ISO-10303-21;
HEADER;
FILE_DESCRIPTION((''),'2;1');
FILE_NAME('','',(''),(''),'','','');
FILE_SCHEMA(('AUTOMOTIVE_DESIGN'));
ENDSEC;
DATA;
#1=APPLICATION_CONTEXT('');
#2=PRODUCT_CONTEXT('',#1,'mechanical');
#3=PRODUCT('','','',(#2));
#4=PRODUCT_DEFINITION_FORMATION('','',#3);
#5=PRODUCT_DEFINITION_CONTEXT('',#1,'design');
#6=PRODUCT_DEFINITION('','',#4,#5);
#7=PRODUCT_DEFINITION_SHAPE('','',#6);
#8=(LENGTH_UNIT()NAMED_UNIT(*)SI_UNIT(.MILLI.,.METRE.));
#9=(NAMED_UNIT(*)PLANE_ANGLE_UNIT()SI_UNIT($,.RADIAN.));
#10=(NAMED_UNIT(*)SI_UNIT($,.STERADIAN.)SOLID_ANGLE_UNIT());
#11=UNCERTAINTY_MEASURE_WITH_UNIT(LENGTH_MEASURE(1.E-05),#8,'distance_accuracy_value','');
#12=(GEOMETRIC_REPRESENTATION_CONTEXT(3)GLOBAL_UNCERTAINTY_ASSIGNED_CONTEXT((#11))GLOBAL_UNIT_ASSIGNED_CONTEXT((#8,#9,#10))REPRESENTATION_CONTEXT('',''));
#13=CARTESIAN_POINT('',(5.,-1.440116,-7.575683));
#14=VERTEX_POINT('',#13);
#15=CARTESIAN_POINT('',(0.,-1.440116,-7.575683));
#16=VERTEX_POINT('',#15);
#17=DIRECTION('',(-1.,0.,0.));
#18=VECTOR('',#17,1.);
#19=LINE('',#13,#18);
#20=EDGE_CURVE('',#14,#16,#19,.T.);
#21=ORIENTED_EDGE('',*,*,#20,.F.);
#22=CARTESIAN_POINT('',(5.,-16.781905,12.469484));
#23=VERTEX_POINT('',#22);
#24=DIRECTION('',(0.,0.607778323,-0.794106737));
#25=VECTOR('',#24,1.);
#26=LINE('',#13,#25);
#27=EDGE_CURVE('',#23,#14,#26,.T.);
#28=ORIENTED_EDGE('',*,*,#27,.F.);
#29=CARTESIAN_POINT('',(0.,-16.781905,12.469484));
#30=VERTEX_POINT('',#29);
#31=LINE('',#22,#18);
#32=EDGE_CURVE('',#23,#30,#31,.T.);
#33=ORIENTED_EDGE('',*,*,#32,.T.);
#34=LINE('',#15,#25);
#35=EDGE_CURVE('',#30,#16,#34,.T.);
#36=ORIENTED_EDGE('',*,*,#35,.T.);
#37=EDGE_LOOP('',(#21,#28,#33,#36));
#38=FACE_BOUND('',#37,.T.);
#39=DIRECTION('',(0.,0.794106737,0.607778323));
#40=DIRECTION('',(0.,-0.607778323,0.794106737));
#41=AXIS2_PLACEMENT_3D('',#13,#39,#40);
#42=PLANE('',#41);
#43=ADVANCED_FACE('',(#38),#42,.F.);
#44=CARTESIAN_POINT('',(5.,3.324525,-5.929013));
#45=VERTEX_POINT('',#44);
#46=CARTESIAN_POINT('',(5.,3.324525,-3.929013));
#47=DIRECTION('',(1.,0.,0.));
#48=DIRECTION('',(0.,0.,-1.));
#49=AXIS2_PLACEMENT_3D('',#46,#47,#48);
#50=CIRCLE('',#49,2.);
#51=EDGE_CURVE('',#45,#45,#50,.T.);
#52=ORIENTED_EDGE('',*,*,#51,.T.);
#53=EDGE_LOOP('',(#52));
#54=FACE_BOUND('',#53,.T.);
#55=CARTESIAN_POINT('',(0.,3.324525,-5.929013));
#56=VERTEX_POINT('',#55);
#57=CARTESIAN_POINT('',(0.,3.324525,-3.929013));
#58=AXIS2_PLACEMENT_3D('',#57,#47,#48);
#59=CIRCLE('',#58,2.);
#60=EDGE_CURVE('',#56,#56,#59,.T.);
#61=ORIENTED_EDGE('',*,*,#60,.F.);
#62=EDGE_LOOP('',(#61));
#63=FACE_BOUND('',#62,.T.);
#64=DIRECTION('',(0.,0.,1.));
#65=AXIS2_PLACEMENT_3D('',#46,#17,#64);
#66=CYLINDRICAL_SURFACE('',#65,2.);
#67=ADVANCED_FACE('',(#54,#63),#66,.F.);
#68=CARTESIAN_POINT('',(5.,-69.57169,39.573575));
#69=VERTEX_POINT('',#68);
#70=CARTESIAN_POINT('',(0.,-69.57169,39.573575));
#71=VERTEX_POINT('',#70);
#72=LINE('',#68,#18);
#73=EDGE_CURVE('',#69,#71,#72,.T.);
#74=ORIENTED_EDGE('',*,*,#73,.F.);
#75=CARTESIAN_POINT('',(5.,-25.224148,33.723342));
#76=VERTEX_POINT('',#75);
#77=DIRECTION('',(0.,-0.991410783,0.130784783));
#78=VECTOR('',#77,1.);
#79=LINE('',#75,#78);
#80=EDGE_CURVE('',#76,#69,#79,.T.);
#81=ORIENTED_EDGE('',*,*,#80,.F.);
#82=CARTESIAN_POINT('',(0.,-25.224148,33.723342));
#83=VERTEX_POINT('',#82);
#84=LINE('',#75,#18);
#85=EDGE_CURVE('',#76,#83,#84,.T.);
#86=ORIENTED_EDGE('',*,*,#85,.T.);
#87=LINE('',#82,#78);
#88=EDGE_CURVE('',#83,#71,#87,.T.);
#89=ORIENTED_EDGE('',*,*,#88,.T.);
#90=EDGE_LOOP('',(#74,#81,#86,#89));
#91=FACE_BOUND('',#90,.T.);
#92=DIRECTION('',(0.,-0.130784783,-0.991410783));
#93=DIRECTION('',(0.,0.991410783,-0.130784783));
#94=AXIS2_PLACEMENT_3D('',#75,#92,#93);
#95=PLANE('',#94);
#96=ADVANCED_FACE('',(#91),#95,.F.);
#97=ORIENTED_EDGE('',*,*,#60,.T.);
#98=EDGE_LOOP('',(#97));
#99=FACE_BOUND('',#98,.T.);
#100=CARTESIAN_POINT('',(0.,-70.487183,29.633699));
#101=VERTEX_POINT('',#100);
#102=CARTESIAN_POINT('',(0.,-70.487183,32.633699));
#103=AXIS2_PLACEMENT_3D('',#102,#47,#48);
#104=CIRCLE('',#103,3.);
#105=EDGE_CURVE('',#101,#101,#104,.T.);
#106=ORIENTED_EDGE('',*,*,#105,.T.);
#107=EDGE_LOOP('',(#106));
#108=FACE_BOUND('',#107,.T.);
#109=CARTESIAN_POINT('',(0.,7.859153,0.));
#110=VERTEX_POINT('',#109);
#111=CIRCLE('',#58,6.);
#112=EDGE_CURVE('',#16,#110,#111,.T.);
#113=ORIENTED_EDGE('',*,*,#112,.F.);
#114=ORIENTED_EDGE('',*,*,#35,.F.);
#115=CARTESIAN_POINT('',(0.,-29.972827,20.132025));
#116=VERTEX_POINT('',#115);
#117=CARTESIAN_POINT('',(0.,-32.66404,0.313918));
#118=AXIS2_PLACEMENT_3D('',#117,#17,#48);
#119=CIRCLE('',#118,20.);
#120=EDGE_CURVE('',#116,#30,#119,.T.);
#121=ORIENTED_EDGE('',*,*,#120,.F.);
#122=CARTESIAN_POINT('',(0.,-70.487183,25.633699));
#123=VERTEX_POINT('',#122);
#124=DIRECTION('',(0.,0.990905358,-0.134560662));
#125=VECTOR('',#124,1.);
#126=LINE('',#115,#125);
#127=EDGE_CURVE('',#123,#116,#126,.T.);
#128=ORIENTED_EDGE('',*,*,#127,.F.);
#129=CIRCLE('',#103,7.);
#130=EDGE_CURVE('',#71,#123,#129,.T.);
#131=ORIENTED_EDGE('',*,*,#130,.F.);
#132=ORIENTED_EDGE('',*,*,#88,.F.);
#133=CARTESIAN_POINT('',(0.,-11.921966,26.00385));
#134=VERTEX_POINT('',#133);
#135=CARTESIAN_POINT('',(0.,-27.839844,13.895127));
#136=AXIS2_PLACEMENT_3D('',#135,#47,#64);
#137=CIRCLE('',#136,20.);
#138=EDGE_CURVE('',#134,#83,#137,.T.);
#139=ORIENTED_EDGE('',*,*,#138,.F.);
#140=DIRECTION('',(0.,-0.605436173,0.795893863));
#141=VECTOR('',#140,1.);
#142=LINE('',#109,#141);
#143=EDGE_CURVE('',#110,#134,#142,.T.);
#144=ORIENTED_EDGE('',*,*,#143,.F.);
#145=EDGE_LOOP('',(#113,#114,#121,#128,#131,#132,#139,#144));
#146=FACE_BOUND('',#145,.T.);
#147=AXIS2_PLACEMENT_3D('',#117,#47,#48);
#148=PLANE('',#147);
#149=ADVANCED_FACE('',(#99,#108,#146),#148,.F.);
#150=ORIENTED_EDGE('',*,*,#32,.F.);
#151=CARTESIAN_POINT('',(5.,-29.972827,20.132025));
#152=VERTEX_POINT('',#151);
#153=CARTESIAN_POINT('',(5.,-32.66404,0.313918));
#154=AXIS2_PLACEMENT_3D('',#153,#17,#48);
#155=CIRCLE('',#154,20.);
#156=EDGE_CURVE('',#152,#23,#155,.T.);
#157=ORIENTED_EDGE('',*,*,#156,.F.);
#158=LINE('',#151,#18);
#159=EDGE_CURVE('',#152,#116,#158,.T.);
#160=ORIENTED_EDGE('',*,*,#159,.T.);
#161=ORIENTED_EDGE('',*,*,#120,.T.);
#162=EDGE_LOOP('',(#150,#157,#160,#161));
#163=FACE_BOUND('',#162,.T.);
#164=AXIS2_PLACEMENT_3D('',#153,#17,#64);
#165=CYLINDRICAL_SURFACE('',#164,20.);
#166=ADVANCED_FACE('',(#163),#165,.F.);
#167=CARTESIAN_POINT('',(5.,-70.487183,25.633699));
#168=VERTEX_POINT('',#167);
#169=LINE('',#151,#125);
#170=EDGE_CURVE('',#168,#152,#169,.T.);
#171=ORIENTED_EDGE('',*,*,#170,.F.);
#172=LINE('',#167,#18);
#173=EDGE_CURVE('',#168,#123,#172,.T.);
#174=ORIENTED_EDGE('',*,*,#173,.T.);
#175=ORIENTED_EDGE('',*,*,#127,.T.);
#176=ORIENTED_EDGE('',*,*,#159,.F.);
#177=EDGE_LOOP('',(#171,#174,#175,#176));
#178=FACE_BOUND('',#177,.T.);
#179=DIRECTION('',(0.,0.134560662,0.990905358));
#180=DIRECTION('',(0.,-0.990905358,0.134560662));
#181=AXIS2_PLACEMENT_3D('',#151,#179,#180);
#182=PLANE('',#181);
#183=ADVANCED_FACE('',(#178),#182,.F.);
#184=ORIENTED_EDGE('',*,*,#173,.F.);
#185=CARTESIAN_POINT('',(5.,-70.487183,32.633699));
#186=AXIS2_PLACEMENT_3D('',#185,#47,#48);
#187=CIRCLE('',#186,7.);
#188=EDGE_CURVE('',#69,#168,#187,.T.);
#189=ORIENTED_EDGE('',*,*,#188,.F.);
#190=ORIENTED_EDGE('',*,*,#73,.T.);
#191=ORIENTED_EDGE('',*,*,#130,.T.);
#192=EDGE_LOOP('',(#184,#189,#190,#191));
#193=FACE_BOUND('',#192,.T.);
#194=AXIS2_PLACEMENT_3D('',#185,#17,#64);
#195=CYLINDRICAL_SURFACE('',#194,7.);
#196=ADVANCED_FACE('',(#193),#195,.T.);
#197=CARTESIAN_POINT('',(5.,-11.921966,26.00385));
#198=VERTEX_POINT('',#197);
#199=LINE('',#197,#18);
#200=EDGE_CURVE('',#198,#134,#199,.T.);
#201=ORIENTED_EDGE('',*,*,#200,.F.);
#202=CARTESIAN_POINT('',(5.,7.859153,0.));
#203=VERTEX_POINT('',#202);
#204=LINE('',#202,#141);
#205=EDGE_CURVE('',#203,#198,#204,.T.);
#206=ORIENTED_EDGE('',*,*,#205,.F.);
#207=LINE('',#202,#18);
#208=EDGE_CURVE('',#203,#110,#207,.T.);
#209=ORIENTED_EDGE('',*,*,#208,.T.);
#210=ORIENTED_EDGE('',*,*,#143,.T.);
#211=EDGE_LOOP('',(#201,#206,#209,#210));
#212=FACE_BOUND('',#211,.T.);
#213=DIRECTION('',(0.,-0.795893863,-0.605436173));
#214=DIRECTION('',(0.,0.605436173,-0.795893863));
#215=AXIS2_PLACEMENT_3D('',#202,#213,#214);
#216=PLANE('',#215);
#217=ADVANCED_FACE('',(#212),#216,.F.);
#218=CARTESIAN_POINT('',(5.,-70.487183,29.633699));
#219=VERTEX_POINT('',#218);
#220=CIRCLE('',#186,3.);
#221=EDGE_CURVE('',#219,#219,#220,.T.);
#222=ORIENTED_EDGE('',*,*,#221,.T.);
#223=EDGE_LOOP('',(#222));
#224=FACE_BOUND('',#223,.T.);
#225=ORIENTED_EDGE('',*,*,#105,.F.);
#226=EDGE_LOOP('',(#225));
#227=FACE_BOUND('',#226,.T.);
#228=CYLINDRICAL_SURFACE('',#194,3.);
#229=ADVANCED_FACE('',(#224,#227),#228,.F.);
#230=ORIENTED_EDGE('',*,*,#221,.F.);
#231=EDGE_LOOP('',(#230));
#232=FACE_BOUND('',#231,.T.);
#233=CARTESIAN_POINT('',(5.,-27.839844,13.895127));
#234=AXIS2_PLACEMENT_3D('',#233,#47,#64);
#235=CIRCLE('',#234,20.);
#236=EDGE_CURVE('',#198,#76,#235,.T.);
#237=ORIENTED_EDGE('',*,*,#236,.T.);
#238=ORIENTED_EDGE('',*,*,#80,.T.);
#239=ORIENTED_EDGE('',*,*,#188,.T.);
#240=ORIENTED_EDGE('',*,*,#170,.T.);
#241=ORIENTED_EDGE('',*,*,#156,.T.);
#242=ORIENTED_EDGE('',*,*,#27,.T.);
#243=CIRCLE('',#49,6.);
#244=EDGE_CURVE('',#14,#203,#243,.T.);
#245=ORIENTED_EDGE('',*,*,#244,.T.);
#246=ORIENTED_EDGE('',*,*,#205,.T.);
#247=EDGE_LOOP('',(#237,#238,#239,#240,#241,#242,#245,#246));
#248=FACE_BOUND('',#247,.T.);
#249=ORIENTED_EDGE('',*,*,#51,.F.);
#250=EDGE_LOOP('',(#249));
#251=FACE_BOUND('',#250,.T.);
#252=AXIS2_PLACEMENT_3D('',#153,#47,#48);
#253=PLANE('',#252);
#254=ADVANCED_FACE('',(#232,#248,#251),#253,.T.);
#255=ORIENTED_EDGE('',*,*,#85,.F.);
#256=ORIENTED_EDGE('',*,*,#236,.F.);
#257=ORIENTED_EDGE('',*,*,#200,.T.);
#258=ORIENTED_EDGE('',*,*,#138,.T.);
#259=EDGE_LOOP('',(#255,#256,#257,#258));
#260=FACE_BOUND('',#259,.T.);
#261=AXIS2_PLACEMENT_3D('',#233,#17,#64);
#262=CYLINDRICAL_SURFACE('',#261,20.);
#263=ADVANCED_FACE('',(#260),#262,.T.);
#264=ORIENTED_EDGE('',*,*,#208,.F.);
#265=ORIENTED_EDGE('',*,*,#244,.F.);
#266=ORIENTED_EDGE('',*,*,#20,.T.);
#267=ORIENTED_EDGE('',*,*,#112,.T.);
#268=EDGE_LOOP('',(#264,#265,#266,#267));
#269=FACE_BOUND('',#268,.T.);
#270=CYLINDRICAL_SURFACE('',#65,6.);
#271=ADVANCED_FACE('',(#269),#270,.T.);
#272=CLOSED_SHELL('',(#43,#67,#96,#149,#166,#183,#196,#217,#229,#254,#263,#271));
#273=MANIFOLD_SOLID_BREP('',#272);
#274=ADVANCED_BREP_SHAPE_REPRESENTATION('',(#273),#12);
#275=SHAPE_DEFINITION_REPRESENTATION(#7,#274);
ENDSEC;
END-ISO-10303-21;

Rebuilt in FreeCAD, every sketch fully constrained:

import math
import FreeCAD as App
import Part
import Sketcher

V = App.Vector
Q = App.Units.Quantity

doc = App.newDocument("Part")
body = doc.addObject("PartDesign::Body", "Body")

sketch1 = body.newObject("Sketcher::SketchObject", "Sketch")
sketch1.AttachmentSupport = (doc.getObject("YZ_Plane"), [""])
sketch1.MapMode = "FlatFace"
sketch1.addGeometry(Part.LineSegment(V(-16.781905, 12.469484, 0), V(-1.440116, -7.575683, 0)), False)
sketch1.addGeometry(Part.ArcOfCircle(Part.Circle(V(3.324525, -3.929013, 0), V(0, 0, 1), 6), math.radians(-142.570966), math.radians(40.90718)), False)
sketch1.addGeometry(Part.LineSegment(V(7.859153, 0, 0), V(-11.921966, 26.00385, 0)), False)
sketch1.addGeometry(Part.ArcOfCircle(Part.Circle(V(-27.839844, 13.895127, 0), V(0, 0, 1), 20), math.radians(37.260235), math.radians(82.485056)), False)
sketch1.addGeometry(Part.LineSegment(V(-25.224148, 33.723342, 0), V(-69.57169, 39.573575, 0)), False)
sketch1.addGeometry(Part.ArcOfCircle(Part.Circle(V(-70.487183, 32.633699, 0), V(0, 0, 1), 7), math.radians(82.485056), math.radians(270)), False)
sketch1.addGeometry(Part.LineSegment(V(-70.487183, 25.633699, 0), V(-29.972827, 20.132025, 0)), False)
sketch1.addGeometry(Part.ArcOfCircle(Part.Circle(V(-32.66404, 0.313918, 0), V(0, 0, 1), 20), math.radians(37.429034), math.radians(82.266784)), False)
sketch1.addGeometry(Part.Circle(V(-70.487183, 32.633699, 0), V(0, 0, 1), 3), False)
sketch1.addGeometry(Part.Circle(V(3.324525, -3.929013, 0), V(0, 0, 1), 2), False)
sketch1.addConstraint(Sketcher.Constraint("Tangent", 0, 2, 1, 1))
sketch1.addConstraint(Sketcher.Constraint("Coincident", 1, 2, 2, 1))
sketch1.addConstraint(Sketcher.Constraint("Tangent", 2, 2, 3, 1))
sketch1.addConstraint(Sketcher.Constraint("Tangent", 3, 2, 4, 1))
sketch1.addConstraint(Sketcher.Constraint("Tangent", 4, 2, 5, 1))
sketch1.addConstraint(Sketcher.Constraint("Coincident", 5, 2, 6, 1))
sketch1.addConstraint(Sketcher.Constraint("Tangent", 6, 2, 7, 2))
sketch1.addConstraint(Sketcher.Constraint("Tangent", 7, 1, 0, 1))
sketch1.addConstraint(Sketcher.Constraint("Coincident", 8, 3, 5, 3))
sketch1.addConstraint(Sketcher.Constraint("Coincident", 9, 3, 1, 3))
sketch1.addConstraint(Sketcher.Constraint("Equal", 3, 7))
sketch1.addConstraint(Sketcher.Constraint("PointOnObject", 1, 2, -1))
sketch1.addConstraint(Sketcher.Constraint("Vertical", 8, 3, 5, 2))
sketch1.addConstraint(Sketcher.Constraint("Diameter", 8, Q("6 mm")))
sketch1.addConstraint(Sketcher.Constraint("Diameter", 9, Q("4 mm")))
sketch1.addConstraint(Sketcher.Constraint("Radius", 1, Q("6 mm")))
sketch1.addConstraint(Sketcher.Constraint("Radius", 3, Q("20 mm")))
sketch1.addConstraint(Sketcher.Constraint("Radius", 5, Q("7 mm")))
sketch1.addConstraint(Sketcher.Constraint("Distance", 6, Q("40.886202 mm")))
sketch1.addConstraint(Sketcher.Constraint("DistanceY", -1, 1, 5, 3, Q("32.633699 mm")))
sketch1.addConstraint(Sketcher.Constraint("DistanceY", 0, 2, 7, 3, Q("7.889601 mm")))
sketch1.addConstraint(Sketcher.Constraint("DistanceY", 3, 3, 6, 2, Q("6.236898 mm")))
sketch1.addConstraint(Sketcher.Constraint("Distance", 0, Q("25.242409 mm")))
sketch1.addConstraint(Sketcher.Constraint("Distance", 2, Q("32.67251 mm")))
sketch1.addConstraint(Sketcher.Constraint("DistanceX", 7, 3, -1, 1, Q("32.66404 mm")))
sketch1.addConstraint(Sketcher.Constraint("DistanceY", -1, 1, 2, 2, Q("26.00385 mm")))
pad1 = body.newObject("PartDesign::Pad", "Pad")
pad1.Profile = sketch1
pad1.Length = 5

doc.recompute()
